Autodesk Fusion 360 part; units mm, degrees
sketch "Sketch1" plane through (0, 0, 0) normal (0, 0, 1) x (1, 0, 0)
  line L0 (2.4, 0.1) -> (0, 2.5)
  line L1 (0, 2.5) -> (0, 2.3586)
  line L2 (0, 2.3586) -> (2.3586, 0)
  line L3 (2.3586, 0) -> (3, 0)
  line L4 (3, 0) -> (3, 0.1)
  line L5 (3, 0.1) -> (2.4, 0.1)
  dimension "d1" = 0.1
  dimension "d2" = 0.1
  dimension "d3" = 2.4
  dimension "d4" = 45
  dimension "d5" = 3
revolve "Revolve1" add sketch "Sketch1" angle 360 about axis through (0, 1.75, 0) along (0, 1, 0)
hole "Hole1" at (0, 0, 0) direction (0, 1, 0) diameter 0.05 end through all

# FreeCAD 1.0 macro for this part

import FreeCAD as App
import Part
import Sketcher

V = App.Vector
Q = App.Units.Quantity

doc = App.newDocument("Part")
body = doc.addObject("PartDesign::Body", "Body")

sketch1 = body.newObject("Sketcher::SketchObject", "Sketch")
sketch1.AttachmentSupport = (doc.getObject("XY_Plane"), [""])
sketch1.MapMode = "FlatFace"
sketch1.addGeometry([
    Part.LineSegment(V(3, 0.1, 0), V(2.4, 0.1, 0)),
    Part.LineSegment(V(2.4, 0.1, 0), V(0, 2.5, 0)),
    Part.LineSegment(V(0, 2.5, 0), V(0, 2.36, 0)),
    Part.LineSegment(V(0, 2.36, 0), V(2.36, 0, 0)),
    Part.LineSegment(V(2.36, 0, 0), V(3, 0, 0)),
    Part.LineSegment(V(3, 0, 0), V(3, 0.1, 0)),
], False)
sketch1.addConstraint([
    Sketcher.Constraint("Coincident", 0, 2, 1, 1),
    Sketcher.Constraint("Coincident", 1, 2, 2, 1),
    Sketcher.Constraint("Coincident", 2, 2, 3, 1),
    Sketcher.Constraint("Coincident", 3, 2, 4, 1),
    Sketcher.Constraint("Coincident", 4, 2, 5, 1),
    Sketcher.Constraint("Coincident", 5, 2, 0, 1),
    Sketcher.Constraint("Horizontal", 0),
    Sketcher.Constraint("Vertical", 2),
    Sketcher.Constraint("Horizontal", 4),
    Sketcher.Constraint("Vertical", 5),
    Sketcher.Constraint("PointOnObject", 1, 2, -2),
    Sketcher.Constraint("PointOnObject", 3, 2, -1),
    Sketcher.Constraint("Parallel", 1, 3),
    Sketcher.Constraint("Angle", 3, Q("-45 deg")),
    Sketcher.Constraint("DistanceY", 5, 1, 5, 2, 0.1),
    Sketcher.Constraint("DistanceX", -1, 1, 4, 2, 3.0),
    Sketcher.Constraint("DistanceX", -1, 1, 0, 2, 2.4),
    Sketcher.Constraint("DistanceX", 4, 1, 4, 2, 0.6414),
])
revolution = body.newObject("PartDesign::Revolution", "Revolution")
revolution.Profile = sketch1
revolution.ReferenceAxis = (sketch1, ["V_Axis"])
revolution.Angle = 360

sketch2 = body.newObject("Sketcher::SketchObject", "Sketch001")
sketch2.AttachmentSupport = (doc.getObject("XZ_Plane"), [""])
sketch2.MapMode = "FlatFace"
sketch2.addGeometry(Part.Circle(V(0, 0, 0), V(0, 0, 1), 0.025), False)
sketch2.addConstraint([
    Sketcher.Constraint("Coincident", 0, 3, -1, 1),
    Sketcher.Constraint("Diameter", 0, 0.05),
])
doc.recompute()
hole = body.newObject("PartDesign::Hole", "Hole")
hole.Profile = sketch2
hole.ThreadType = "None"
hole.Diameter = 0.05
hole.DepthType = "ThroughAll"

doc.recompute()
